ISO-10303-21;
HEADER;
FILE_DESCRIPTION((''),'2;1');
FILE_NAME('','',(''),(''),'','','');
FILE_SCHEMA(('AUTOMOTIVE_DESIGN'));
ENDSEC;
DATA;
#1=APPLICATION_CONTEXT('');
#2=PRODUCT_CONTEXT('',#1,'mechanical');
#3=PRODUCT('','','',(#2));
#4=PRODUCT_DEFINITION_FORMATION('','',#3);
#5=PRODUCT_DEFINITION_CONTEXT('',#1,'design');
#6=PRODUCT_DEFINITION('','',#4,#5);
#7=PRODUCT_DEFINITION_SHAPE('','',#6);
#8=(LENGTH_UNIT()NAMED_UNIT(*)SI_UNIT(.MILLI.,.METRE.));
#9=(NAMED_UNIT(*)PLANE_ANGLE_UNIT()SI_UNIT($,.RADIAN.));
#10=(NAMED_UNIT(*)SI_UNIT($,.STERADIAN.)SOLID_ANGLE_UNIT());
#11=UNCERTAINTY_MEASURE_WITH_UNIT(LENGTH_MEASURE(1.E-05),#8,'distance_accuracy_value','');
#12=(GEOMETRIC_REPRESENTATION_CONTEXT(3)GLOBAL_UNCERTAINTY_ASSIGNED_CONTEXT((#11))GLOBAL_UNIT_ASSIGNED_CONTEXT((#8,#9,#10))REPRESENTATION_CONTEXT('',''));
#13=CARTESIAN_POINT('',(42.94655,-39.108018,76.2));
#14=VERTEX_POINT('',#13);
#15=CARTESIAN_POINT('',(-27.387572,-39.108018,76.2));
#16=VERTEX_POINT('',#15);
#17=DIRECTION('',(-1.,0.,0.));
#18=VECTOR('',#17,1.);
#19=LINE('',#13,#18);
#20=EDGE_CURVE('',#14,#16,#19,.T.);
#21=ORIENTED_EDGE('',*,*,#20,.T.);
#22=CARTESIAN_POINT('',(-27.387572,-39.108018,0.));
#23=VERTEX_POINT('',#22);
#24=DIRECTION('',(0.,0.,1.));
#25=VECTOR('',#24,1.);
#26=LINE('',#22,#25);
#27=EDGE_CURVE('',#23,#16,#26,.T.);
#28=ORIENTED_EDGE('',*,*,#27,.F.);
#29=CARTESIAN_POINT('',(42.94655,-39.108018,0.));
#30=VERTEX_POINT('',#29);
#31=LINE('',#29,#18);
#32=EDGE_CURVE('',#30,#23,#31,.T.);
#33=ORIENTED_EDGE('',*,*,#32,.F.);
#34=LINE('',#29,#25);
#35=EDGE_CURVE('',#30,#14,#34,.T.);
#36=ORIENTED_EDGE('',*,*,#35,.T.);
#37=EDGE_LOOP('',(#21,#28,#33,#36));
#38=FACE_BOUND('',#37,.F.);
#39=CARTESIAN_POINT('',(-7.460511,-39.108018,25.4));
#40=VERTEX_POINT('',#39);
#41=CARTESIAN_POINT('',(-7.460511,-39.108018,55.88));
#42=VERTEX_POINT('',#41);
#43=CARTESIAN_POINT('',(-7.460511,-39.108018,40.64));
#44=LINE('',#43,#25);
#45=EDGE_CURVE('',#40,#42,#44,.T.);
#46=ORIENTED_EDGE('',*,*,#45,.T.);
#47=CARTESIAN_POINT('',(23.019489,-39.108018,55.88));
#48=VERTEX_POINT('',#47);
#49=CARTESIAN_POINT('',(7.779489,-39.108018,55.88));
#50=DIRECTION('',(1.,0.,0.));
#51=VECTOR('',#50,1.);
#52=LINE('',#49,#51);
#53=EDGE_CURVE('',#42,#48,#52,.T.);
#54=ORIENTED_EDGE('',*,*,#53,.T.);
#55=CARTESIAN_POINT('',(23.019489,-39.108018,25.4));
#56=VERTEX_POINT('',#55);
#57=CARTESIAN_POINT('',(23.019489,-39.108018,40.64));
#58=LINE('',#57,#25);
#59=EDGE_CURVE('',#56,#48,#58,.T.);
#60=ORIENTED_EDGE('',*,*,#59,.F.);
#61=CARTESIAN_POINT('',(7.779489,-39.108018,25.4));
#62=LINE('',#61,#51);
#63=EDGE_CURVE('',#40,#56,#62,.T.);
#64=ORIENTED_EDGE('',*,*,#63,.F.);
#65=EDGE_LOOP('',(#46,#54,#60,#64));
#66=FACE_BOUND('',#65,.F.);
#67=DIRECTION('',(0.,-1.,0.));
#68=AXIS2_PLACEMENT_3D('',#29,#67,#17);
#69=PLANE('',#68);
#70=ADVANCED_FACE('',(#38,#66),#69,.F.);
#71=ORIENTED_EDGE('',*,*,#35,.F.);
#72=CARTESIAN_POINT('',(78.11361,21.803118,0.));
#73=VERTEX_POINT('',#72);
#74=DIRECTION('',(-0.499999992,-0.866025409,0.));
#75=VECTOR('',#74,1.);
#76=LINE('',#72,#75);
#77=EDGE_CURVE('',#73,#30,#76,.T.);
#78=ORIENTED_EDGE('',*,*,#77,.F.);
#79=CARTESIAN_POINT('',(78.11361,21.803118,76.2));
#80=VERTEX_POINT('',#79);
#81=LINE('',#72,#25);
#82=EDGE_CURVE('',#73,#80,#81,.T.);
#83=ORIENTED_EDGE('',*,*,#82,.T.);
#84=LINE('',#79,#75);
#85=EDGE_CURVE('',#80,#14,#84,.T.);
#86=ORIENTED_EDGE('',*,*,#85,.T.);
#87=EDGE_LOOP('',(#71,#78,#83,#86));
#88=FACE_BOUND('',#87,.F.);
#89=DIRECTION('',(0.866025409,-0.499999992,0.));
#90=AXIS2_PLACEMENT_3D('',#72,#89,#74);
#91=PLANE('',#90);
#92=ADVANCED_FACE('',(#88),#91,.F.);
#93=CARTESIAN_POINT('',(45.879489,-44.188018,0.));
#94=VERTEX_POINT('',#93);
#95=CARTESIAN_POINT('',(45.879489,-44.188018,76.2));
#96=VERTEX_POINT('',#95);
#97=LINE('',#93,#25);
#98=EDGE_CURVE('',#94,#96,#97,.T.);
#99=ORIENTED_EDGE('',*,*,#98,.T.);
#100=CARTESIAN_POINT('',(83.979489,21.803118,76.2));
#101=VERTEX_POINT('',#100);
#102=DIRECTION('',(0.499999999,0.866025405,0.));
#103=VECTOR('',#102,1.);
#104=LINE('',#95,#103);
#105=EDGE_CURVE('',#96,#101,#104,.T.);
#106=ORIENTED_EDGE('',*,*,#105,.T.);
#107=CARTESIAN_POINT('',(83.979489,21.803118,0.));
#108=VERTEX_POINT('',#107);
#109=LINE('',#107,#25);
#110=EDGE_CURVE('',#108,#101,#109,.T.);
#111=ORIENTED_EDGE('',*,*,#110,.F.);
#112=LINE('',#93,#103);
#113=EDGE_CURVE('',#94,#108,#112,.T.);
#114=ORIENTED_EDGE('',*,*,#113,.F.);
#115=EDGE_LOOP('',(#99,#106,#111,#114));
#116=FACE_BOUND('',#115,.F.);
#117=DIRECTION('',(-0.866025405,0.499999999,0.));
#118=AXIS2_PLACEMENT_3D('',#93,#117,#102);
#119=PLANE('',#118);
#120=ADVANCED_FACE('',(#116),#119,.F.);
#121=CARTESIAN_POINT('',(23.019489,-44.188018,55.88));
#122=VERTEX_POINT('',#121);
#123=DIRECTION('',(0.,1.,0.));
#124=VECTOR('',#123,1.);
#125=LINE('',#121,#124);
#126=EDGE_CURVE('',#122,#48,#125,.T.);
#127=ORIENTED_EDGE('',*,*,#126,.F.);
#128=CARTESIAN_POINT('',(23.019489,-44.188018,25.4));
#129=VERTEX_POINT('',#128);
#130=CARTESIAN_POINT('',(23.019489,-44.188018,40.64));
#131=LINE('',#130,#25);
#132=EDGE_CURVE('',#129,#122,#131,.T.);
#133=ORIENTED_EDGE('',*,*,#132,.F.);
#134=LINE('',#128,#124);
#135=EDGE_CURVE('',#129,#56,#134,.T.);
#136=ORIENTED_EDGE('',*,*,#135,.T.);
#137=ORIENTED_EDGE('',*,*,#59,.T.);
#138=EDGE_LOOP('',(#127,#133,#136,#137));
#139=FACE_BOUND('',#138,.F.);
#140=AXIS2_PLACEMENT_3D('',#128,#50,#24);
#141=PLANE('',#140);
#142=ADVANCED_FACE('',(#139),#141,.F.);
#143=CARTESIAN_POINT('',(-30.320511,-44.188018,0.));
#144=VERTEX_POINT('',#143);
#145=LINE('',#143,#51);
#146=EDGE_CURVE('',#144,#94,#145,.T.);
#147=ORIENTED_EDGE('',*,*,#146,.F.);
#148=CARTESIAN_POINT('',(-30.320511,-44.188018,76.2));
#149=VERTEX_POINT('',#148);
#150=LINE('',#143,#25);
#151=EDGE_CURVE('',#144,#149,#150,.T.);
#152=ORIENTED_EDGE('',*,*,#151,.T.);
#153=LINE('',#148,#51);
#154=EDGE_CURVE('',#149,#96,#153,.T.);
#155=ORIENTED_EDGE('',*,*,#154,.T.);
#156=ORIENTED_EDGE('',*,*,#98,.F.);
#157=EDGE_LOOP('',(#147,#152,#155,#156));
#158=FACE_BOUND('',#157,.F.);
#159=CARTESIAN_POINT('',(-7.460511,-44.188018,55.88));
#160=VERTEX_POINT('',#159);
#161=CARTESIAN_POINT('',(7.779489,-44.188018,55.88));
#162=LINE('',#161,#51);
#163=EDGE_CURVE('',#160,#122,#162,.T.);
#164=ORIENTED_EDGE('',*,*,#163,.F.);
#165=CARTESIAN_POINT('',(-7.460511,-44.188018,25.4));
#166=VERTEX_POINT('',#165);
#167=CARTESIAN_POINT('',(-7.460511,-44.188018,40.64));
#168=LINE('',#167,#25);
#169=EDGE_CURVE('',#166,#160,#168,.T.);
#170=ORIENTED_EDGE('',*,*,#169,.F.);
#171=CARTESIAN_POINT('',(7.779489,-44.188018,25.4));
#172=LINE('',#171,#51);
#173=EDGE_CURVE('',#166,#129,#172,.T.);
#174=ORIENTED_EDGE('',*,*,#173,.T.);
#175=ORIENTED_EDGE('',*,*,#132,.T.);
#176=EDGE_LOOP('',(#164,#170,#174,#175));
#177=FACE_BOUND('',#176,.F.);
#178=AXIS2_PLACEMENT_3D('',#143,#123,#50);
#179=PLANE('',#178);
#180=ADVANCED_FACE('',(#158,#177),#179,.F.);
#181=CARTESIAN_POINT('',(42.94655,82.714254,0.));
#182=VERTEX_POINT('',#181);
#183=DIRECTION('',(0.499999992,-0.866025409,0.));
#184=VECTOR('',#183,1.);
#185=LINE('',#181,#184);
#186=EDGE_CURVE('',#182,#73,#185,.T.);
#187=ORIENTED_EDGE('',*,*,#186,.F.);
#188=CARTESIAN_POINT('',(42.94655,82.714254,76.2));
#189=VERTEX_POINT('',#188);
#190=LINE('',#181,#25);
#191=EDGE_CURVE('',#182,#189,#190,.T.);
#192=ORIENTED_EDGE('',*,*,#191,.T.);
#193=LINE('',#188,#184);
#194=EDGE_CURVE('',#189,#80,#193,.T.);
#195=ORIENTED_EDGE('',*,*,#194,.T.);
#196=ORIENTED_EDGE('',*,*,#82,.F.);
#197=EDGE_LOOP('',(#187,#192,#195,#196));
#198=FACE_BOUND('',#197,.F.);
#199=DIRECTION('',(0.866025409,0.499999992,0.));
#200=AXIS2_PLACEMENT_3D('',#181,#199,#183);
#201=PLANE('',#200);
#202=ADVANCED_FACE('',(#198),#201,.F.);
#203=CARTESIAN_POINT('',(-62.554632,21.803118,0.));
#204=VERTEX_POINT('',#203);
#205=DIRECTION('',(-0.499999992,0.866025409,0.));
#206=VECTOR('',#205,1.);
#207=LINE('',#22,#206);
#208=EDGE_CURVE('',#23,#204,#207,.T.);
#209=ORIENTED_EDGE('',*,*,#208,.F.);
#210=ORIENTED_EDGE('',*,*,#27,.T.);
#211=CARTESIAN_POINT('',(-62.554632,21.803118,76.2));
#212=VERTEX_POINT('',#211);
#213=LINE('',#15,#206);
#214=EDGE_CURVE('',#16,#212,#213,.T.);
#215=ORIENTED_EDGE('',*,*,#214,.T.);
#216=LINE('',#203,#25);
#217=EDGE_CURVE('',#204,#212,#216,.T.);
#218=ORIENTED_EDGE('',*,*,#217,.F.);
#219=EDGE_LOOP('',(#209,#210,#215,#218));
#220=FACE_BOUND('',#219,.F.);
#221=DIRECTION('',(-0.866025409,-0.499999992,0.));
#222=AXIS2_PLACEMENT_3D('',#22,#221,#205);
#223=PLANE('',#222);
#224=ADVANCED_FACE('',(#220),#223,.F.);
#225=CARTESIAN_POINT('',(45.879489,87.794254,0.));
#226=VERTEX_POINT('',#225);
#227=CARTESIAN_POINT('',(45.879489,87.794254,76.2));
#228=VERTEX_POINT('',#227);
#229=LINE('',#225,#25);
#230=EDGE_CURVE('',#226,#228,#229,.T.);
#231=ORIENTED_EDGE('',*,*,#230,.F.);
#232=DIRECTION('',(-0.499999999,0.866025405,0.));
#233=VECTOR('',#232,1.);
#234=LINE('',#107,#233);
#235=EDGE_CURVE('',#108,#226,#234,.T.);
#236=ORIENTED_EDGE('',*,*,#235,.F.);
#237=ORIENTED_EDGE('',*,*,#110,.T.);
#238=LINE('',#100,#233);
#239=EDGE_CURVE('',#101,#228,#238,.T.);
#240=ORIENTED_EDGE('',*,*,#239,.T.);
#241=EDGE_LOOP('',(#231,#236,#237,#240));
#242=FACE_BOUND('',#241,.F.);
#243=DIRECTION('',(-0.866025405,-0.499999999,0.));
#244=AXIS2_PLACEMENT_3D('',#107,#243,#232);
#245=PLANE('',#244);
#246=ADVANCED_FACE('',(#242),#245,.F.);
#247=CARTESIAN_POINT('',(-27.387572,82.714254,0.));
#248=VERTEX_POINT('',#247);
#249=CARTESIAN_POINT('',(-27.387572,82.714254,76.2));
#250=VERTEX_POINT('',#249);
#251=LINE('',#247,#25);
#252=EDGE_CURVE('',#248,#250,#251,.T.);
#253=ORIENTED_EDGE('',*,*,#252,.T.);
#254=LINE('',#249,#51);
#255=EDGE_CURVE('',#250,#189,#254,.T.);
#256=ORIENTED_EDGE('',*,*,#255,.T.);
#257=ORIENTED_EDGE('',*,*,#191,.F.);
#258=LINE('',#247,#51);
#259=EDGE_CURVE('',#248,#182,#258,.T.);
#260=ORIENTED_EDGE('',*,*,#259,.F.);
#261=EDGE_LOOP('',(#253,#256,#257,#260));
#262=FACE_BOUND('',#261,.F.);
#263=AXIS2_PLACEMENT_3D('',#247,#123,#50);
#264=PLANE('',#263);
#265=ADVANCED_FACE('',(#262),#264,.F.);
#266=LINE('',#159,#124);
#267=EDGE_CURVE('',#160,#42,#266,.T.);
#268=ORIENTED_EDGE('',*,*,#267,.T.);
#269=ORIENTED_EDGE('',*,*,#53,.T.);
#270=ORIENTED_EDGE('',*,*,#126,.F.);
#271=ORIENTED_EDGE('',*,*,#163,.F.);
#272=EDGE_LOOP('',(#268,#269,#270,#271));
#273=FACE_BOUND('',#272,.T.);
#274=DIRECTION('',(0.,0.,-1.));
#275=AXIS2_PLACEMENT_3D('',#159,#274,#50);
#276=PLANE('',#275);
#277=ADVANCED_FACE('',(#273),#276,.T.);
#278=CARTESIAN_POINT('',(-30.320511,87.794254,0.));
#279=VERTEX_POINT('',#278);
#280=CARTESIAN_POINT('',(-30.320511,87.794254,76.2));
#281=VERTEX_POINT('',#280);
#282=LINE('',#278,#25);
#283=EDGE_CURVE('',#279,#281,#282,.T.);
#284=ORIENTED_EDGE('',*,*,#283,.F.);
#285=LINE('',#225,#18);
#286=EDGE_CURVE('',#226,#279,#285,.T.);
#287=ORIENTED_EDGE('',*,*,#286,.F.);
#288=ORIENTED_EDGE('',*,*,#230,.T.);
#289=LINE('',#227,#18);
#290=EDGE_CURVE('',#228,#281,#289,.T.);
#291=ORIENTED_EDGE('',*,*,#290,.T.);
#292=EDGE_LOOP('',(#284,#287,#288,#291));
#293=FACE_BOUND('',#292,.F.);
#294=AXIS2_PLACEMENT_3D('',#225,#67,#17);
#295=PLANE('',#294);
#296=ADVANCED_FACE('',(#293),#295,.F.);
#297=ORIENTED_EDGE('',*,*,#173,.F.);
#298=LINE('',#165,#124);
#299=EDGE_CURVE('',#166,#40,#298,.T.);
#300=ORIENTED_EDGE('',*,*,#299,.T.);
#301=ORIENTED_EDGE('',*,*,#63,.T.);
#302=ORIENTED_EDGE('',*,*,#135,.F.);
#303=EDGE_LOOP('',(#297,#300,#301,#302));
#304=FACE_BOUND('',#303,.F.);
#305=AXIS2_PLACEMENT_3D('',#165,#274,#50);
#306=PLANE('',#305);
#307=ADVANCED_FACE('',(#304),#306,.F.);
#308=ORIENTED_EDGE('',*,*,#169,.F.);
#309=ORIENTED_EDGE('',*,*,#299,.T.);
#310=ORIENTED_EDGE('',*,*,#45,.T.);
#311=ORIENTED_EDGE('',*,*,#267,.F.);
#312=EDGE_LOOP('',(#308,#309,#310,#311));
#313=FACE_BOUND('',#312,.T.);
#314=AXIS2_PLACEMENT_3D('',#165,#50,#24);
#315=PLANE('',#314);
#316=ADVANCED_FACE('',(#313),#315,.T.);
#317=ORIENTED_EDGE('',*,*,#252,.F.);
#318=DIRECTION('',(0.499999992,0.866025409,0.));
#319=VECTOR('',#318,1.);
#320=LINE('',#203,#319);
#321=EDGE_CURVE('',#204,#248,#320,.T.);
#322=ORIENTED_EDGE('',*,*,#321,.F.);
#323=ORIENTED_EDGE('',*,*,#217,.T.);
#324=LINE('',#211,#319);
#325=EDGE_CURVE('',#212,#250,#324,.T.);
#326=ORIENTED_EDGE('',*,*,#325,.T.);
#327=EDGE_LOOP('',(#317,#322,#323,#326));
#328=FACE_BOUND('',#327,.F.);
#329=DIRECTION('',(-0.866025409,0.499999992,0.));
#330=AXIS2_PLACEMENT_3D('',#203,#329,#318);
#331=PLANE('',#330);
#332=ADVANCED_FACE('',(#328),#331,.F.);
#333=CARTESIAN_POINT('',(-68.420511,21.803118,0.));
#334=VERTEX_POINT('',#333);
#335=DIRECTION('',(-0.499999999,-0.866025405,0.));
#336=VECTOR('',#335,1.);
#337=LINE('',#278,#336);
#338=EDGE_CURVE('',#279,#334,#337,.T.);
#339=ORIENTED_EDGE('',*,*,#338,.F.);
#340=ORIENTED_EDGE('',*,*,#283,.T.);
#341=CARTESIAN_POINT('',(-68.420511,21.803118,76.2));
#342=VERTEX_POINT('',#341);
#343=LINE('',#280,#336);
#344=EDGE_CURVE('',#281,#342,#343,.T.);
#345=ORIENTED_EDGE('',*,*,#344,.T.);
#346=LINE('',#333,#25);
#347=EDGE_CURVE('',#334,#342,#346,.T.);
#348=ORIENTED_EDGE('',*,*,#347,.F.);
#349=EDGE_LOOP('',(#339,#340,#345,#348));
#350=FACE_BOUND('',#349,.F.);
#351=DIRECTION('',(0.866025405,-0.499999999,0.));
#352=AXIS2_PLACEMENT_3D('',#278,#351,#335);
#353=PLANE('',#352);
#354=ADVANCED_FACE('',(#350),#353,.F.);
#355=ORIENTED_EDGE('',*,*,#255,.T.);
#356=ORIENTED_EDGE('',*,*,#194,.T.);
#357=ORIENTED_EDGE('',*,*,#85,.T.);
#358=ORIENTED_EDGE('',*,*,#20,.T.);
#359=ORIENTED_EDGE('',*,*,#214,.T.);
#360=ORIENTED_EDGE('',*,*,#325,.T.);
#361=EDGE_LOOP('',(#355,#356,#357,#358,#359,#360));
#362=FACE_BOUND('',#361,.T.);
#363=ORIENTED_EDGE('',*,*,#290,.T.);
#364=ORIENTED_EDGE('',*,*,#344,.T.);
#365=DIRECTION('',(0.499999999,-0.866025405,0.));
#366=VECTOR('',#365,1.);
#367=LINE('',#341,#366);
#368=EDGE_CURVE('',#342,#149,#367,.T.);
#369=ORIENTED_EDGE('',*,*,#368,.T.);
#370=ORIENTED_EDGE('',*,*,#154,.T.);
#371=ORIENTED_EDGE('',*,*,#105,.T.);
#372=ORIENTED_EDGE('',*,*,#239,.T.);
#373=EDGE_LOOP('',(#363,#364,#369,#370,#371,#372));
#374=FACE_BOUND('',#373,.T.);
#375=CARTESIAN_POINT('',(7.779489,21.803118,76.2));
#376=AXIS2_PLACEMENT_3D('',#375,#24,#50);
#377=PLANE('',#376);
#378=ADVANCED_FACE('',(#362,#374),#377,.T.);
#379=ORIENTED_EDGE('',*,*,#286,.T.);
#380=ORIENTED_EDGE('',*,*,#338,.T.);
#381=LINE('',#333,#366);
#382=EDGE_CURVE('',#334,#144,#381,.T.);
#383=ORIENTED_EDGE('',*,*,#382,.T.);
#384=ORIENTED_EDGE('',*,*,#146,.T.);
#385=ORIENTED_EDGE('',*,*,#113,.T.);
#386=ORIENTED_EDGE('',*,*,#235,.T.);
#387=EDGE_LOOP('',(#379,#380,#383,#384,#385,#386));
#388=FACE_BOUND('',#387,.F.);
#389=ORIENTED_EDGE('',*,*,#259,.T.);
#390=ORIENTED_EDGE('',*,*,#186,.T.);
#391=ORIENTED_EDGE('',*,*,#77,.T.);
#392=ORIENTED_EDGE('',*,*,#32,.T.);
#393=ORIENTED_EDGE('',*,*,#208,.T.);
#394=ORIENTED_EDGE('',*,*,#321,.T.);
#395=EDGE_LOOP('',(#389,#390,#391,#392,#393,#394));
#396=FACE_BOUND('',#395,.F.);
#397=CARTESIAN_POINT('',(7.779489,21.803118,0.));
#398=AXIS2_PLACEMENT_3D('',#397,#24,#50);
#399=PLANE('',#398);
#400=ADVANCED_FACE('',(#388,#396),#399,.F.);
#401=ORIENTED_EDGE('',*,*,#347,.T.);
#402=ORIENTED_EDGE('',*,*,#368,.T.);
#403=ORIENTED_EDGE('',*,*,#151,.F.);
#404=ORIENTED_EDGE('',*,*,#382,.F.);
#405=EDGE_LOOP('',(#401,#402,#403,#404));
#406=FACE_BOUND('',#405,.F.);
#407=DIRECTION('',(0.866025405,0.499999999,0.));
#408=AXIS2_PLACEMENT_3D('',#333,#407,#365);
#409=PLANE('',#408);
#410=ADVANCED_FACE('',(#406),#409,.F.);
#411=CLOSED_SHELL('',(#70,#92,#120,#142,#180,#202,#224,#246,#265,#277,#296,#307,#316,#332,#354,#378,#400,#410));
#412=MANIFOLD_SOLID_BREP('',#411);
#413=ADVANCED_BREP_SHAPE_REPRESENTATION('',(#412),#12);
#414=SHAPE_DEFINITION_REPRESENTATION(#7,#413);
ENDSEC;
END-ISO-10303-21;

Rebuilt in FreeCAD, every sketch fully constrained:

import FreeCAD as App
import Part
import Sketcher
from FreeCAD import Vector
Q = App.Units.Quantity

doc = App.newDocument("Part")
body = doc.addObject("PartDesign::Body", "Body")

# Sketch on XY plane
sketch1 = body.newObject("Sketcher::SketchObject", "Sketch")
sketch1.AttachmentSupport = (doc.getObject("XY_Plane"), [""])
sketch1.MapMode = "FlatFace"
sketch1.addGeometry([
    Part.LineSegment(Vector(-30, 88, 0), Vector(-68, 22, 0)),  # 0
    Part.LineSegment(Vector(-68, 22, 0), Vector(-30, -44, 0)),  # 1
    Part.LineSegment(Vector(-30, -44, 0), Vector(46, -44, 0)),  # 2
    Part.LineSegment(Vector(46, -44, 0), Vector(84, 22, 0)),  # 3
    Part.LineSegment(Vector(84, 22, 0), Vector(46, 88, 0)),  # 4
    Part.LineSegment(Vector(46, 88, 0), Vector(-30, 88, 0)),  # 5
    Part.LineSegment(Vector(43, -39, 0), Vector(-27, -39, 0)),  # 6
    Part.LineSegment(Vector(-27, -39, 0), Vector(-63, 22, 0)),  # 7
    Part.LineSegment(Vector(-63, 22, 0), Vector(-27, 83, 0)),  # 8
    Part.LineSegment(Vector(-27, 83, 0), Vector(43, 83, 0)),  # 9
    Part.LineSegment(Vector(43, 83, 0), Vector(78, 22, 0)),  # 10
    Part.LineSegment(Vector(78, 22, 0), Vector(43, -39, 0)),  # 11
], False)
sketch1.addConstraint([
    Sketcher.Constraint("Coincident", 0, 2, 1, 1),
    Sketcher.Constraint("Coincident", 1, 2, 2, 1),
    Sketcher.Constraint("Coincident", 2, 2, 3, 1),
    Sketcher.Constraint("Coincident", 3, 2, 4, 1),
    Sketcher.Constraint("Coincident", 4, 2, 5, 1),
    Sketcher.Constraint("Coincident", 5, 2, 0, 1),
    Sketcher.Constraint("Coincident", 6, 2, 7, 1),
    Sketcher.Constraint("Coincident", 7, 2, 8, 1),
    Sketcher.Constraint("Coincident", 8, 2, 9, 1),
    Sketcher.Constraint("Coincident", 9, 2, 10, 1),
    Sketcher.Constraint("Coincident", 10, 2, 11, 1),
    Sketcher.Constraint("Coincident", 11, 2, 6, 1),
    Sketcher.Constraint("Horizontal", 2),
    Sketcher.Constraint("Horizontal", 5),
    Sketcher.Constraint("Horizontal", 6),
    Sketcher.Constraint("Horizontal", 9),
    Sketcher.Constraint("Parallel", 0, 3),
    Sketcher.Constraint("Parallel", 1, 4),
    Sketcher.Constraint("Parallel", 4, 7),
    Sketcher.Constraint("Parallel", 3, 8),
    Sketcher.Constraint("Parallel", 7, 10),
    Sketcher.Constraint("Parallel", 8, 11),
    Sketcher.Constraint("Horizontal", 0, 2, 3, 2),
    Sketcher.Constraint("Horizontal", 3, 2, 7, 2),
    Sketcher.Constraint("Horizontal", 7, 2, 10, 2),
    Sketcher.Constraint("Vertical", 2, 2, 4, 2),
    Sketcher.Constraint("Vertical", 1, 2, 5, 2),
    Sketcher.Constraint("Vertical", 6, 2, 8, 2),
    Sketcher.Constraint("DistanceX", 2, 1, 2, 2, Q("3 in")),
    Sketcher.Constraint("Distance", 0, Q("3 in")),
    Sketcher.Constraint("Angle", 0, Q("-120 deg")),
    Sketcher.Constraint("DistanceY", 1, 2, 6, 2, Q("0.2 in")),
    Sketcher.Constraint("DistanceX", 6, 2, 6, 1, 70.334122),
    Sketcher.Constraint("DistanceX", 0, 2, -1, 1, 68.420511),
    Sketcher.Constraint("DistanceY", -1, 1, 0, 2, 21.803118),
    Sketcher.Constraint("DistanceX", 6, 2, -1, 1, 27.387572),
])
pad1 = body.newObject("PartDesign::Pad", "Pad")
pad1.Profile = sketch1
pad1.Length = Q("3 in")

# Sketch on XZ plane
sketch2 = body.newObject("Sketcher::SketchObject", "Sketch001")
sketch2.AttachmentSupport = (doc.getObject("XZ_Plane"), [""])
sketch2.MapMode = "FlatFace"
sketch2.AttachmentOffset = App.Placement(Vector(0, 0, 44.188018), App.Rotation())
sketch2.addGeometry([
    Part.LineSegment(Vector(-7, 56, 0), Vector(-7, 25, 0)),
    Part.LineSegment(Vector(-7, 25, 0), Vector(23, 25, 0)),
    Part.LineSegment(Vector(23, 25, 0), Vector(23, 56, 0)),
    Part.LineSegment(Vector(23, 56, 0), Vector(-7, 56, 0)),
], False)
sketch2.addConstraint([
    Sketcher.Constraint("Coincident", 0, 2, 1, 1),
    Sketcher.Constraint("Coincident", 1, 2, 2, 1),
    Sketcher.Constraint("Coincident", 2, 2, 3, 1),
    Sketcher.Constraint("Coincident", 3, 2, 0, 1),
    Sketcher.Constraint("Vertical", 0),
    Sketcher.Constraint("Horizontal", 1),
    Sketcher.Constraint("Vertical", 2),
    Sketcher.Constraint("Horizontal", 3),
    Sketcher.Constraint("Equal", 3, 0),
    Sketcher.Constraint("DistanceX", 1, 1, 1, 2, Q("1.2 in")),
    Sketcher.Constraint("DistanceY", -1, 1, 0, 2, Q("1 in")),
    Sketcher.Constraint("DistanceX", 0, 2, -1, 1, 7.460511),
])
pocket1 = body.newObject("PartDesign::Pocket", "Pocket")
pocket1.Profile = sketch2
pocket1.Length = Q("0.2 in")

doc.recompute()
